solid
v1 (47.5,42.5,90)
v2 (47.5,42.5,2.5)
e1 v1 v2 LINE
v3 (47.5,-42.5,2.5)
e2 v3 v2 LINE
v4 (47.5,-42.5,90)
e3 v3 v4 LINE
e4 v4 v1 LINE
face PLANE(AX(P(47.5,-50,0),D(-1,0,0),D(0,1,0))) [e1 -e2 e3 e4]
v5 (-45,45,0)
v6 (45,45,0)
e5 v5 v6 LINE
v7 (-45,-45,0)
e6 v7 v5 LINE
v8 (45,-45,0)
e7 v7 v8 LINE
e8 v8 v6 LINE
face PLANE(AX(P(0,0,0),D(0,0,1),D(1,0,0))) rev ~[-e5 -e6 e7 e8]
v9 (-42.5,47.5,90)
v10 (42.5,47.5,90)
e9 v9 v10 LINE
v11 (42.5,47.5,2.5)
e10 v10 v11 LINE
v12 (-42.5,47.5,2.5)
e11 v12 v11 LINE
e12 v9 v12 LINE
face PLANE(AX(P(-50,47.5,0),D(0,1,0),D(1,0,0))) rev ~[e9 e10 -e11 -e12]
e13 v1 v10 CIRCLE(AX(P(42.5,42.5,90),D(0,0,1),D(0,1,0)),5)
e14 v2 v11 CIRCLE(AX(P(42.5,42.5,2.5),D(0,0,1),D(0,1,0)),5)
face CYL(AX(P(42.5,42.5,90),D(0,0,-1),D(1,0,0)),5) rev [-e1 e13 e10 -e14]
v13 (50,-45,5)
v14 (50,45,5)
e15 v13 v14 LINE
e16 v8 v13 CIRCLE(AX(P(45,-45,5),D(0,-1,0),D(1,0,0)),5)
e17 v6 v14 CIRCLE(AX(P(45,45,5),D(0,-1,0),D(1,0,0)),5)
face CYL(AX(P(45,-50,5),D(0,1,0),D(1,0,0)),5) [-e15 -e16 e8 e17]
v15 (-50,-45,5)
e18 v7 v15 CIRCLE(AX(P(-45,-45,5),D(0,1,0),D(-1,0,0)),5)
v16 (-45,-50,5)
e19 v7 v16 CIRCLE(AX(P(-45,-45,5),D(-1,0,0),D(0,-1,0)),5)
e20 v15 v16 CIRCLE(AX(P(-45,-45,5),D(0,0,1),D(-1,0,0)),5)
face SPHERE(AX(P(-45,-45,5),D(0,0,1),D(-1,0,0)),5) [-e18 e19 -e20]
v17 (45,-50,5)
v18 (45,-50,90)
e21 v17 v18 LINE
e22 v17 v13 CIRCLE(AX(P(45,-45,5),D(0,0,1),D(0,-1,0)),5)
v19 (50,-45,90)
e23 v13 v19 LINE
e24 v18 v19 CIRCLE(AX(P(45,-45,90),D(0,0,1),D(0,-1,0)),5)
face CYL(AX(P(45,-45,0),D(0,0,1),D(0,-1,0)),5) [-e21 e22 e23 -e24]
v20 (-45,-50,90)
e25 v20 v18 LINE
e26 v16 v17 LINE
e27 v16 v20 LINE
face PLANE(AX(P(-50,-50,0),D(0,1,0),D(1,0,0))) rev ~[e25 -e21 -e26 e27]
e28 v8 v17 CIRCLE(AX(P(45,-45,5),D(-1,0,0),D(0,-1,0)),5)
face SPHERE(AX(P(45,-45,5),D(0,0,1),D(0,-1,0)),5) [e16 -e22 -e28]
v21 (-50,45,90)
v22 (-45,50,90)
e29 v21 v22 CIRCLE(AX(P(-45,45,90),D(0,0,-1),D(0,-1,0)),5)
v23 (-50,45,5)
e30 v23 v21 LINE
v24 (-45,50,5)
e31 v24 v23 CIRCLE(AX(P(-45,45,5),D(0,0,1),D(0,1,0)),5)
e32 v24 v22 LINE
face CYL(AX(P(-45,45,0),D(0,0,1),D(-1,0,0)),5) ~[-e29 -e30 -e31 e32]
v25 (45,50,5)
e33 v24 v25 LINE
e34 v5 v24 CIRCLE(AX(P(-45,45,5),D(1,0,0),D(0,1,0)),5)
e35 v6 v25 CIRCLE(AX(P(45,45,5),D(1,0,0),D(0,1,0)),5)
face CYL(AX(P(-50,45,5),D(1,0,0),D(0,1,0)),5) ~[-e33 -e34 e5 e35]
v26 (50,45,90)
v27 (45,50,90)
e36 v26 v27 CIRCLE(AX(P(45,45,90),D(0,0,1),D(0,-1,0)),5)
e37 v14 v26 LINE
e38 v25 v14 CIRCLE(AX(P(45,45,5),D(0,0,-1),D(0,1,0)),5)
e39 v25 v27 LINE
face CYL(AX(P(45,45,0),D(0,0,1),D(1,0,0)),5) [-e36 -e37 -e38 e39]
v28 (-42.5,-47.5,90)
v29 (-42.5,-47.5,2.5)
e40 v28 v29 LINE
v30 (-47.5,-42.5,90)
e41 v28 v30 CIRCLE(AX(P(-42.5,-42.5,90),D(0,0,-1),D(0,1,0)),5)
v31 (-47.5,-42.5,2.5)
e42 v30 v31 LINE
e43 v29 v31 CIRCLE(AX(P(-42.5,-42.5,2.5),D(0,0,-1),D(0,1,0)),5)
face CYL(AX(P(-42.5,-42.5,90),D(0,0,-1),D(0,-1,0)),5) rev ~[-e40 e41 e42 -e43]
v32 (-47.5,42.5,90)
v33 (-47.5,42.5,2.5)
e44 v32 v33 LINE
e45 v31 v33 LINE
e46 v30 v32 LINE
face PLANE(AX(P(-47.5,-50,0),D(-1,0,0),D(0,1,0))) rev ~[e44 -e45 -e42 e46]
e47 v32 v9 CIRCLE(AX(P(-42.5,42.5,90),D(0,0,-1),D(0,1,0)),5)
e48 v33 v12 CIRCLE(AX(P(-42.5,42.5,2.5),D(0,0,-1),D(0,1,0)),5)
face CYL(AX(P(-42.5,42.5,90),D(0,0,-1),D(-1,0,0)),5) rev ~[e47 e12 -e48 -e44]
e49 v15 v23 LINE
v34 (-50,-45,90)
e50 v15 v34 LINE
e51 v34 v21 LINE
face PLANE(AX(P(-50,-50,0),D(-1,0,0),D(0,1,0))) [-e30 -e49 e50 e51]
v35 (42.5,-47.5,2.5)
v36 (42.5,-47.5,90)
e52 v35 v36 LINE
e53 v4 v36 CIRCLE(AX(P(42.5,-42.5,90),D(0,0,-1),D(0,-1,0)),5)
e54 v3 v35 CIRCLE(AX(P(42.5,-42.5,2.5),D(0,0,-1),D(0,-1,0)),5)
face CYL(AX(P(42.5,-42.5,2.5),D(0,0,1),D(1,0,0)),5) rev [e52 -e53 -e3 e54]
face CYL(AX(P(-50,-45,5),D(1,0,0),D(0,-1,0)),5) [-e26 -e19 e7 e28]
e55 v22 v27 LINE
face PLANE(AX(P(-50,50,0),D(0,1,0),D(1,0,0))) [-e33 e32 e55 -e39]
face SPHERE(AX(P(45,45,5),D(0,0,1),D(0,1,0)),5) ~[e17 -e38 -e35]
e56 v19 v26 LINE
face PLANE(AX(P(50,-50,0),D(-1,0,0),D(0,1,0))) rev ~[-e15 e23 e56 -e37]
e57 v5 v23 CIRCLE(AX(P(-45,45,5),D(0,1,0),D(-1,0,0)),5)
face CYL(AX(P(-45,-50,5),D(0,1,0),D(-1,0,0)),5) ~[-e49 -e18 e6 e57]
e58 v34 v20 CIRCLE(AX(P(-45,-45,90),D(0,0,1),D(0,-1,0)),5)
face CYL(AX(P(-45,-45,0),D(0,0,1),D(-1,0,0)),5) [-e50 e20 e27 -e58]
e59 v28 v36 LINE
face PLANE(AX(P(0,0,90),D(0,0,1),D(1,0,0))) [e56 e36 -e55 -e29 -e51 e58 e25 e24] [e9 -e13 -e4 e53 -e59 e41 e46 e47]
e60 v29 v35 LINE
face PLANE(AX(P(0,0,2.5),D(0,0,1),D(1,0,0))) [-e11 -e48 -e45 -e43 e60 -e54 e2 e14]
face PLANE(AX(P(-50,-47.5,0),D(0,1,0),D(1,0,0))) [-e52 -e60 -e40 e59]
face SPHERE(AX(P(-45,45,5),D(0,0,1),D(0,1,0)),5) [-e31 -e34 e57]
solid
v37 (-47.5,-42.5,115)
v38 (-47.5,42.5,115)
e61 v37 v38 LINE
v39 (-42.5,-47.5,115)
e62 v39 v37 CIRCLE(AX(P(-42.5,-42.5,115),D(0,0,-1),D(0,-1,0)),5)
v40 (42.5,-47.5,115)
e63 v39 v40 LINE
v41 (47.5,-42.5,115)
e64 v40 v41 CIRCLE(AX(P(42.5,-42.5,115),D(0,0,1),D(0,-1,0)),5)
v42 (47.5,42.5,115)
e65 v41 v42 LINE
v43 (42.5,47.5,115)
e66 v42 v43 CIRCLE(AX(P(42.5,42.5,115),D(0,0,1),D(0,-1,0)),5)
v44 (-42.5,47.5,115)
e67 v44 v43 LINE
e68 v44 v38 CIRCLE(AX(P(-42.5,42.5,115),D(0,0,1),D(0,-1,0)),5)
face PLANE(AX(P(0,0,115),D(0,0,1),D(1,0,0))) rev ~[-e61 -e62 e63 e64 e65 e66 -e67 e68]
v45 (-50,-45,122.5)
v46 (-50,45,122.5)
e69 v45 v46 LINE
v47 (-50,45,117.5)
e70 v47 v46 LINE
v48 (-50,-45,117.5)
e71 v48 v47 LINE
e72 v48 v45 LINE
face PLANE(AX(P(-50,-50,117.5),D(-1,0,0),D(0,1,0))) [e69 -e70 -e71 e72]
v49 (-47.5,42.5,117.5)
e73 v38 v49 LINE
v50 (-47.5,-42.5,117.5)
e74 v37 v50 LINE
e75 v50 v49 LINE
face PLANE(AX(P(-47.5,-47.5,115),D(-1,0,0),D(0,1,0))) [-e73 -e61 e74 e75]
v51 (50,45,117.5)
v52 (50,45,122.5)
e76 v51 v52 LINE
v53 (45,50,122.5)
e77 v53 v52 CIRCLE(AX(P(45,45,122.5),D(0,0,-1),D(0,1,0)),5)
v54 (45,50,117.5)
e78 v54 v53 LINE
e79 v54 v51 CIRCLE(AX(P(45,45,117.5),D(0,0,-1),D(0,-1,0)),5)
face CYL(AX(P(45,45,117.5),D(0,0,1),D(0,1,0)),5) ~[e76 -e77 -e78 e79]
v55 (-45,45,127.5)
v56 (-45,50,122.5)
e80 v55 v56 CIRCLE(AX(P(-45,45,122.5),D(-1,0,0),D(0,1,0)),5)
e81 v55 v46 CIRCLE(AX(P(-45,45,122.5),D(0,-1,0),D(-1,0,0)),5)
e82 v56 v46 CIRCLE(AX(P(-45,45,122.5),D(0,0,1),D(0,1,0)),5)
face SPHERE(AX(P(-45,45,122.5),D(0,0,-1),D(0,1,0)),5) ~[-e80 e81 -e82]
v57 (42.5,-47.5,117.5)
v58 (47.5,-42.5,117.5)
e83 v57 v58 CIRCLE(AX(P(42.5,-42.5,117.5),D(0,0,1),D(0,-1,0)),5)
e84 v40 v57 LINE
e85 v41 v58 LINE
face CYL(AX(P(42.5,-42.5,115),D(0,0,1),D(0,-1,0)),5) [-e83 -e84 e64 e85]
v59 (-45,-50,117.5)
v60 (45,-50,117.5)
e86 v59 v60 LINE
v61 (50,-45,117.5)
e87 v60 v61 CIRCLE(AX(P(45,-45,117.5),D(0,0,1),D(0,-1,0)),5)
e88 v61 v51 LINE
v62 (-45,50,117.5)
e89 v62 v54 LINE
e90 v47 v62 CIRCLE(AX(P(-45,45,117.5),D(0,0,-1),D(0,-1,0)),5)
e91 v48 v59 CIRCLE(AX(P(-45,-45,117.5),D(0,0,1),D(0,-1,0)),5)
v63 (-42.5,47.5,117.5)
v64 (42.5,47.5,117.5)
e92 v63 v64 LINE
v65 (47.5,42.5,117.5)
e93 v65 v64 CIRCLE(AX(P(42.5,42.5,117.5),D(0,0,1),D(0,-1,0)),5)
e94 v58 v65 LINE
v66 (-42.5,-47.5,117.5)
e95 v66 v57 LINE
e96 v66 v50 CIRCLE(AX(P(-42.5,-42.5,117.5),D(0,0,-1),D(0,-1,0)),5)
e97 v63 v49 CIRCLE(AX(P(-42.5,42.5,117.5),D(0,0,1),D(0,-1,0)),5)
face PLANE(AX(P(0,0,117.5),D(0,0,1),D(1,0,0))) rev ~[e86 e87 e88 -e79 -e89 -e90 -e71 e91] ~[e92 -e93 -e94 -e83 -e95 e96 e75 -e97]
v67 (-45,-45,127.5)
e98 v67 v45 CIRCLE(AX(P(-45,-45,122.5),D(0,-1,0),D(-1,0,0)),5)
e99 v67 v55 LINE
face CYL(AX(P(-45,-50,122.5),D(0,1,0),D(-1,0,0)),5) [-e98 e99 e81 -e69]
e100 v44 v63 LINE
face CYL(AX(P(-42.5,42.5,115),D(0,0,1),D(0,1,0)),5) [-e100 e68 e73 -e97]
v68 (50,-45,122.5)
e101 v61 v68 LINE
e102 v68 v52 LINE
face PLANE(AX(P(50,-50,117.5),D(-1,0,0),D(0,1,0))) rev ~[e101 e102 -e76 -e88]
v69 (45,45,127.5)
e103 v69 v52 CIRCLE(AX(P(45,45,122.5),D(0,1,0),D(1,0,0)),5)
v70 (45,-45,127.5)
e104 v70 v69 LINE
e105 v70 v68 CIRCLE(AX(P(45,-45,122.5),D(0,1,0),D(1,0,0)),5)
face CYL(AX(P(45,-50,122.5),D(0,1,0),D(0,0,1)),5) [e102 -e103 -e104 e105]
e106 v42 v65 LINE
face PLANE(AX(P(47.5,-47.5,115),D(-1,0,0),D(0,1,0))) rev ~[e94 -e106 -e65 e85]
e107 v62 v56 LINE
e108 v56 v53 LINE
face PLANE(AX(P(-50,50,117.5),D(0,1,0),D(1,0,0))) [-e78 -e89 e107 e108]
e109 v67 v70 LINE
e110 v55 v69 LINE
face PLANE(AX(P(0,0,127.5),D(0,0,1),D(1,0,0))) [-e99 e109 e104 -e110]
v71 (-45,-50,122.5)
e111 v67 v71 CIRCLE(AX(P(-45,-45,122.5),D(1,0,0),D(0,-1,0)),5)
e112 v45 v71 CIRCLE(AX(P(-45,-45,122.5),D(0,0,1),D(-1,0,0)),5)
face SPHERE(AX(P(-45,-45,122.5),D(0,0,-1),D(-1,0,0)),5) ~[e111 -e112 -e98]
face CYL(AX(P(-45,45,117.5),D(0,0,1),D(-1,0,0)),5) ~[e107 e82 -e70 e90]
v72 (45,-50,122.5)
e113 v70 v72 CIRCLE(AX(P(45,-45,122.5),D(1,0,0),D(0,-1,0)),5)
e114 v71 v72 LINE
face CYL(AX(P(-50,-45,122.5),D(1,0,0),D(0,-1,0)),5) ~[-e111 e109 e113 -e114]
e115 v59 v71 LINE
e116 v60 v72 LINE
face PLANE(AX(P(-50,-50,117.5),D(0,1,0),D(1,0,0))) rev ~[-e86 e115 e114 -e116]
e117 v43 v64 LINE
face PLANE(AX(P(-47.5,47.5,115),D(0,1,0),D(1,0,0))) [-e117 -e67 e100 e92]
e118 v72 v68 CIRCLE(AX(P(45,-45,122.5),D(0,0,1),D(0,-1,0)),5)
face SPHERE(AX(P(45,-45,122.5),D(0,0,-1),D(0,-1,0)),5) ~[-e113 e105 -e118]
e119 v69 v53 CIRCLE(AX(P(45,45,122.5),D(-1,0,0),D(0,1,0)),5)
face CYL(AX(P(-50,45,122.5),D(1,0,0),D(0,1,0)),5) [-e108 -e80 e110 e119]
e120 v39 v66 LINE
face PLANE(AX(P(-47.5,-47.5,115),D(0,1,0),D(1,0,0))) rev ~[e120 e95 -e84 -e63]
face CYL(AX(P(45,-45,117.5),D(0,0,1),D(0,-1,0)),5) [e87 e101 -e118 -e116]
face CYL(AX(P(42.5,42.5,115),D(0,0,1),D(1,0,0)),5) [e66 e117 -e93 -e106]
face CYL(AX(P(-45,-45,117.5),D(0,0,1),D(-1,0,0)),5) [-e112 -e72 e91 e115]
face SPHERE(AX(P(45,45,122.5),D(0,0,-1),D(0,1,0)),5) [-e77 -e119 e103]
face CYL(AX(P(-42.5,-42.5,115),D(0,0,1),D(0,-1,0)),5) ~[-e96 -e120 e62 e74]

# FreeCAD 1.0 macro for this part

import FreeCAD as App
import Part
import Sketcher
from FreeCAD import Vector
Q = App.Units.Quantity


def edges_at(feature, points):
    """Names of the edges that pass closest to the given points."""
    edges = feature.Shape.Edges
    near = lambda p: min(range(len(edges)), key=lambda i: edges[i].distToShape(Part.Vertex(*p))[0])
    return sorted({f"Edge{near(p) + 1}" for p in points})


def faces_at(feature, points):
    """Names of the faces that lie closest to the given points."""
    faces = feature.Shape.Faces
    near = lambda p: min(range(len(faces)), key=lambda i: faces[i].distToShape(Part.Vertex(*p))[0])
    return sorted({f"Face{near(p) + 1}" for p in points})

doc = App.newDocument("Part")
body = doc.addObject("PartDesign::Body", "Body")

sketch1 = body.newObject("Sketcher::SketchObject", "Sketch")
sketch1.AttachmentSupport = (doc.getObject("XY_Plane"), [""])
sketch1.MapMode = "FlatFace"
sketch1.addGeometry(Part.LineSegment(Vector(-50, 50, 0), Vector(-50, -50, 0)), False)
sketch1.addGeometry(Part.LineSegment(Vector(-50, -50, 0), Vector(50, -50, 0)), False)
sketch1.addGeometry(Part.LineSegment(Vector(50, -50, 0), Vector(50, 50, 0)), False)
sketch1.addGeometry(Part.LineSegment(Vector(50, 50, 0), Vector(-50, 50, 0)), False)
sketch1.addConstraint(Sketcher.Constraint("Coincident", 0, 2, 1, 1))
sketch1.addConstraint(Sketcher.Constraint("Coincident", 1, 2, 2, 1))
sketch1.addConstraint(Sketcher.Constraint("Coincident", 2, 2, 3, 1))
sketch1.addConstraint(Sketcher.Constraint("Coincident", 3, 2, 0, 1))
sketch1.addConstraint(Sketcher.Constraint("Vertical", 0))
sketch1.addConstraint(Sketcher.Constraint("Horizontal", 1))
sketch1.addConstraint(Sketcher.Constraint("Vertical", 2))
sketch1.addConstraint(Sketcher.Constraint("Horizontal", 3))
sketch1.addConstraint(Sketcher.Constraint("Symmetric", 0, 2, 2, 2, -1, 1))
sketch1.addConstraint(Sketcher.Constraint("Equal", 3, 0))
sketch1.addConstraint(Sketcher.Constraint("DistanceX", 1, 1, 1, 2, Q("100 mm")))
pad1 = body.newObject("PartDesign::Pad", "Pad")
pad1.Profile = sketch1
pad1.Length = 90
doc.recompute()

thickness = body.newObject("PartDesign::Thickness", "Thickness")
thickness.Base = (pad1, faces_at(pad1, [(0, 0, 90)]))
thickness.Value = 2.5
thickness.Reversed = True
thickness.Join = "Arc"
doc.recompute()

fillet = body.newObject("PartDesign::Fillet", "Fillet")
fillet.Base = (thickness, edges_at(thickness, [
    (50, 50, 45),
    (-50, 50, 45),
    (-50, -50, 45),
    (50, -50, 45),
    (0, 50, 0),
    (-50, 0, 0),
    (0, -50, 0),
    (50, 0, 0),
]))
fillet.Radius = 5
doc.recompute()

fillet2 = body.newObject("PartDesign::Fillet", "Fillet001")
fillet2.Base = (fillet, edges_at(fillet, [
    (-47.5, 47.5, 46.25),
    (47.5, 47.5, 46.25),
    (47.5, -47.5, 46.25),
    (-47.5, -47.5, 46.25),
]))
fillet2.Radius = 5
body2 = doc.addObject("PartDesign::Body", "Body001")

sketch2 = body2.newObject("Sketcher::SketchObject", "Sketch001")
sketch2.AttachmentSupport = (doc.getObject("XY_Plane001"), [""])
sketch2.MapMode = "FlatFace"
sketch2.AttachmentOffset = App.Placement(Vector(0, 0, 115), App.Rotation())
sketch2.addGeometry(Part.LineSegment(Vector(-48, 48, 0), Vector(-48, -48, 0)), False)
sketch2.addGeometry(Part.LineSegment(Vector(-48, -48, 0), Vector(48, -48, 0)), False)
sketch2.addGeometry(Part.LineSegment(Vector(48, -48, 0), Vector(48, 48, 0)), False)
sketch2.addGeometry(Part.LineSegment(Vector(48, 48, 0), Vector(-48, 48, 0)), False)
sketch2.addConstraint(Sketcher.Constraint("Coincident", 0, 2, 1, 1))
sketch2.addConstraint(Sketcher.Constraint("Coincident", 1, 2, 2, 1))
sketch2.addConstraint(Sketcher.Constraint("Coincident", 2, 2, 3, 1))
sketch2.addConstraint(Sketcher.Constraint("Coincident", 3, 2, 0, 1))
sketch2.addConstraint(Sketcher.Constraint("Vertical", 0))
sketch2.addConstraint(Sketcher.Constraint("Horizontal", 1))
sketch2.addConstraint(Sketcher.Constraint("Vertical", 2))
sketch2.addConstraint(Sketcher.Constraint("Horizontal", 3))
sketch2.addConstraint(Sketcher.Constraint("Symmetric", 0, 2, 2, 2, -1, 1))
sketch2.addConstraint(Sketcher.Constraint("Equal", 3, 0))
sketch2.addConstraint(Sketcher.Constraint("DistanceX", 1, 1, 1, 2, Q("95 mm")))
pad2 = body2.newObject("PartDesign::Pad", "Pad001")
pad2.Profile = sketch2
pad2.Length = 2.5

sketch3 = body2.newObject("Sketcher::SketchObject", "Sketch002")
sketch3.AttachmentSupport = (doc.getObject("XY_Plane001"), [""])
sketch3.MapMode = "FlatFace"
sketch3.AttachmentOffset = App.Placement(Vector(0, 0, 117.5), App.Rotation())
sketch3.addGeometry(Part.LineSegment(Vector(-50, 50, 0), Vector(-50, -50, 0)), False)
sketch3.addGeometry(Part.LineSegment(Vector(-50, -50, 0), Vector(50, -50, 0)), False)
sketch3.addGeometry(Part.LineSegment(Vector(50, -50, 0), Vector(50, 50, 0)), False)
sketch3.addGeometry(Part.LineSegment(Vector(50, 50, 0), Vector(-50, 50, 0)), False)
sketch3.addConstraint(Sketcher.Constraint("Coincident", 0, 2, 1, 1))
sketch3.addConstraint(Sketcher.Constraint("Coincident", 1, 2, 2, 1))
sketch3.addConstraint(Sketcher.Constraint("Coincident", 2, 2, 3, 1))
sketch3.addConstraint(Sketcher.Constraint("Coincident", 3, 2, 0, 1))
sketch3.addConstraint(Sketcher.Constraint("Vertical", 0))
sketch3.addConstraint(Sketcher.Constraint("Horizontal", 1))
sketch3.addConstraint(Sketcher.Constraint("Vertical", 2))
sketch3.addConstraint(Sketcher.Constraint("Horizontal", 3))
sketch3.addConstraint(Sketcher.Constraint("Symmetric", 0, 2, 2, 2, -1, 1))
sketch3.addConstraint(Sketcher.Constraint("Equal", 3, 0))
sketch3.addConstraint(Sketcher.Constraint("DistanceX", 1, 1, 1, 2, Q("100 mm")))
pad3 = body2.newObject("PartDesign::Pad", "Pad002")
pad3.Profile = sketch3
pad3.Length = 10
doc.recompute()

fillet3 = body2.newObject("PartDesign::Fillet", "Fillet002")
fillet3.Base = (pad3, edges_at(pad3, [
    (50, 50, 122.5),
    (-50, 50, 122.5),
    (-50, -50, 122.5),
    (50, -50, 122.5),
    (0, 50, 127.5),
    (-50, 0, 127.5),
    (0, -50, 127.5),
    (50, 0, 127.5),
]))
fillet3.Radius = 5
doc.recompute()

fillet4 = body2.newObject("PartDesign::Fillet", "Fillet003")
fillet4.Base = (fillet3, edges_at(fillet3, [
    (47.5, 47.5, 116.25),
    (47.5, -47.5, 116.25),
    (-47.5, -47.5, 116.25),
    (-47.5, 47.5, 116.25),
]))
fillet4.Radius = 5

doc.recompute()
